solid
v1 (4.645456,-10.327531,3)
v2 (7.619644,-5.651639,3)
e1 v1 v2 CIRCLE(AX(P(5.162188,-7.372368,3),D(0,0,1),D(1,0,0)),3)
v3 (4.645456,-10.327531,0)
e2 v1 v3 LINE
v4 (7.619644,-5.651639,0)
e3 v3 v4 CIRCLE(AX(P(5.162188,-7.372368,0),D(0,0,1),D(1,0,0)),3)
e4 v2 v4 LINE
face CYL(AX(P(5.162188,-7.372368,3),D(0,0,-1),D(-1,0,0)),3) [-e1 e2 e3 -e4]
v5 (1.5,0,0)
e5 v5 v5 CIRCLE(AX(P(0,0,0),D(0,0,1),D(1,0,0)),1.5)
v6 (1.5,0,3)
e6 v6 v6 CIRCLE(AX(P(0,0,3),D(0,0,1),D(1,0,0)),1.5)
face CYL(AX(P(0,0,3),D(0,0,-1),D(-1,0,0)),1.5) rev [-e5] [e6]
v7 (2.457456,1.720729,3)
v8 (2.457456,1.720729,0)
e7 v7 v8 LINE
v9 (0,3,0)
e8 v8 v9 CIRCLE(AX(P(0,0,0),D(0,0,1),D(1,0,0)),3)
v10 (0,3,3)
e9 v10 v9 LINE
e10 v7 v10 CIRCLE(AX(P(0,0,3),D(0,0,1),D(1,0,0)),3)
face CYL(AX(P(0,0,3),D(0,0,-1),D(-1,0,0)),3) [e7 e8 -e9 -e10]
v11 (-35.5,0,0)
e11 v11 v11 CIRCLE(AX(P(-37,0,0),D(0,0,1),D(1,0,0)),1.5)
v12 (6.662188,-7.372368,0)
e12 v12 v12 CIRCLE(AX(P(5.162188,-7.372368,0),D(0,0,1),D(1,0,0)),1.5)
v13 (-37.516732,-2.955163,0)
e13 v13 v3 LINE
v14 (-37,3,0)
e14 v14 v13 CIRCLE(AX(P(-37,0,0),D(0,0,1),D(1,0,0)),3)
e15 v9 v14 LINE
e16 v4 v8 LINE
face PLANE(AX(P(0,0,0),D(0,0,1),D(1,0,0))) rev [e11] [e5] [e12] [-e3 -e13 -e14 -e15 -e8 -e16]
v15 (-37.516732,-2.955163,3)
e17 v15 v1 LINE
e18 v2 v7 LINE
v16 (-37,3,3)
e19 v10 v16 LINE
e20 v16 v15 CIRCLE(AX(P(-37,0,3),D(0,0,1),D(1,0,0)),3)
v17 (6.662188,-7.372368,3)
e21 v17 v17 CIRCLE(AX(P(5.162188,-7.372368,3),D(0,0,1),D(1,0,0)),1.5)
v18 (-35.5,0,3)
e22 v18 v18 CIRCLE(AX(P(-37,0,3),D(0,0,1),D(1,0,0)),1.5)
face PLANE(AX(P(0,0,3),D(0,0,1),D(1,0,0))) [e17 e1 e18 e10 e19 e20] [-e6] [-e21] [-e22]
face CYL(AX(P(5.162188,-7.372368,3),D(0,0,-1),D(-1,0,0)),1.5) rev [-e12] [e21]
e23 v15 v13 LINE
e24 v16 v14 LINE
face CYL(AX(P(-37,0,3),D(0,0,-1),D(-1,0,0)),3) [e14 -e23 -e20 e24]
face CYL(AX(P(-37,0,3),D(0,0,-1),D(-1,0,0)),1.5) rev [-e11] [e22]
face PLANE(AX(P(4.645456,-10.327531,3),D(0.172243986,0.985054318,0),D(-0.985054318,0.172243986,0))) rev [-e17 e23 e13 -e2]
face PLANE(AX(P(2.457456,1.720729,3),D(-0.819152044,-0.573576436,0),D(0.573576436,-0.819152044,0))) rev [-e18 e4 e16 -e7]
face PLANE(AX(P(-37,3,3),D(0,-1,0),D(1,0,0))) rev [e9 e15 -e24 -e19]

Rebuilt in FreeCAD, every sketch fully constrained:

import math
import FreeCAD as App
import Part
import Sketcher
Q = App.Units.Quantity

doc = App.newDocument("Part")
params = doc.addObject("Spreadsheet::Sheet", "Params")
for row, (alias, value) in enumerate([
    ("sketch1_diameter", "3 mm"),
    ("sketch1_radius", "3 mm"),
    ("sketch1_width", "37 mm"),
    ("sketch1_length", "9 mm"),
    ("pad1_length", "3 mm"),
], start=1):
    params.set(f"A{row}", alias)
    params.set(f"B{row}", "=" + value)
    params.setAlias(f"B{row}", alias)

body = doc.addObject("PartDesign::Body", "Body")

# Sketch on XY plane
sketch1 = doc.addObject("Sketcher::SketchObject", "Sketch")
body.addObject(sketch1)
sketch1.AttachmentSupport = (doc.XY_Plane, [""])
sketch1.MapMode = "FlatFace"
sketch1.addGeometry(Part.LineSegment(App.Vector(0, 3, 0), App.Vector(-37, 3, 0)), False)
sketch1.addGeometry(Part.ArcOfCircle(Part.Circle(App.Vector(-37, 0, 0), App.Vector(0, 0, 1), 3), math.radians(90), math.radians(260)), False)
sketch1.addGeometry(Part.LineSegment(App.Vector(-37.5, -3, 0), App.Vector(4.6, -10.3, 0)), False)
sketch1.addGeometry(Part.ArcOfCircle(Part.Circle(App.Vector(5.2, -7.4, 0), App.Vector(0, 0, 1), 3), math.radians(-100), math.radians(35)), False)
sketch1.addGeometry(Part.LineSegment(App.Vector(7.6, -5.7, 0), App.Vector(2.5, 1.7, 0)), False)
sketch1.addGeometry(Part.ArcOfCircle(Part.Circle(App.Vector(0, 0, 0), App.Vector(0, 0, 1), 3), math.radians(35), math.radians(90)), False)
sketch1.addGeometry(Part.Circle(App.Vector(5.2, -7.4, 0), App.Vector(0, 0, 1), 1.5), False)
sketch1.addGeometry(Part.Circle(App.Vector(0, 0, 0), App.Vector(0, 0, 1), 1.5), False)
sketch1.addGeometry(Part.Circle(App.Vector(-37, 0, 0), App.Vector(0, 0, 1), 1.5), False)
sketch1.addConstraint(Sketcher.Constraint("Tangent", 0, 2, 1, 1))
sketch1.addConstraint(Sketcher.Constraint("Tangent", 1, 2, 2, 1))
sketch1.addConstraint(Sketcher.Constraint("Tangent", 2, 2, 3, 1))
sketch1.addConstraint(Sketcher.Constraint("Tangent", 3, 2, 4, 1))
sketch1.addConstraint(Sketcher.Constraint("Tangent", 4, 2, 5, 1))
sketch1.addConstraint(Sketcher.Constraint("Tangent", 5, 2, 0, 1))
sketch1.addConstraint(Sketcher.Constraint("Horizontal", 0))
sketch1.addConstraint(Sketcher.Constraint("Coincident", 5, 3, -1, 1))
sketch1.addConstraint(Sketcher.Constraint("Coincident", 7, 3, -1, 1))
sketch1.addConstraint(Sketcher.Constraint("Coincident", 6, 3, 3, 3))
sketch1.addConstraint(Sketcher.Constraint("Coincident", 8, 3, 1, 3))
sketch1.addConstraint(Sketcher.Constraint("Equal", 1, 3))
sketch1.addConstraint(Sketcher.Constraint("Equal", 3, 5))
sketch1.addConstraint(Sketcher.Constraint("Equal", 6, 7))
sketch1.addConstraint(Sketcher.Constraint("Equal", 7, 8))
sketch1.addConstraint(Sketcher.Constraint("Diameter", 6, Q("3 mm")))
sketch1.addConstraint(Sketcher.Constraint("Radius", 1, Q("3 mm")))
sketch1.addConstraint(Sketcher.Constraint("DistanceX", 0, 2, 0, 1, Q("37 mm")))
sketch1.addConstraint(Sketcher.Constraint("Angle", 4, Q("125 deg")))
sketch1.addConstraint(Sketcher.Constraint("Distance", 4, Q("9 mm")))
sketch1.setExpression("Constraints[15]", "Params.sketch1_diameter")
sketch1.setExpression("Constraints[16]", "Params.sketch1_radius")
sketch1.setExpression("Constraints[17]", "Params.sketch1_width")
sketch1.setExpression("Constraints[19]", "Params.sketch1_length")
pad1 = doc.addObject("PartDesign::Pad", "Pad")
body.addObject(pad1)
pad1.Profile = sketch1
pad1.setExpression("Length", "Params.pad1_length")

doc.recompute()
